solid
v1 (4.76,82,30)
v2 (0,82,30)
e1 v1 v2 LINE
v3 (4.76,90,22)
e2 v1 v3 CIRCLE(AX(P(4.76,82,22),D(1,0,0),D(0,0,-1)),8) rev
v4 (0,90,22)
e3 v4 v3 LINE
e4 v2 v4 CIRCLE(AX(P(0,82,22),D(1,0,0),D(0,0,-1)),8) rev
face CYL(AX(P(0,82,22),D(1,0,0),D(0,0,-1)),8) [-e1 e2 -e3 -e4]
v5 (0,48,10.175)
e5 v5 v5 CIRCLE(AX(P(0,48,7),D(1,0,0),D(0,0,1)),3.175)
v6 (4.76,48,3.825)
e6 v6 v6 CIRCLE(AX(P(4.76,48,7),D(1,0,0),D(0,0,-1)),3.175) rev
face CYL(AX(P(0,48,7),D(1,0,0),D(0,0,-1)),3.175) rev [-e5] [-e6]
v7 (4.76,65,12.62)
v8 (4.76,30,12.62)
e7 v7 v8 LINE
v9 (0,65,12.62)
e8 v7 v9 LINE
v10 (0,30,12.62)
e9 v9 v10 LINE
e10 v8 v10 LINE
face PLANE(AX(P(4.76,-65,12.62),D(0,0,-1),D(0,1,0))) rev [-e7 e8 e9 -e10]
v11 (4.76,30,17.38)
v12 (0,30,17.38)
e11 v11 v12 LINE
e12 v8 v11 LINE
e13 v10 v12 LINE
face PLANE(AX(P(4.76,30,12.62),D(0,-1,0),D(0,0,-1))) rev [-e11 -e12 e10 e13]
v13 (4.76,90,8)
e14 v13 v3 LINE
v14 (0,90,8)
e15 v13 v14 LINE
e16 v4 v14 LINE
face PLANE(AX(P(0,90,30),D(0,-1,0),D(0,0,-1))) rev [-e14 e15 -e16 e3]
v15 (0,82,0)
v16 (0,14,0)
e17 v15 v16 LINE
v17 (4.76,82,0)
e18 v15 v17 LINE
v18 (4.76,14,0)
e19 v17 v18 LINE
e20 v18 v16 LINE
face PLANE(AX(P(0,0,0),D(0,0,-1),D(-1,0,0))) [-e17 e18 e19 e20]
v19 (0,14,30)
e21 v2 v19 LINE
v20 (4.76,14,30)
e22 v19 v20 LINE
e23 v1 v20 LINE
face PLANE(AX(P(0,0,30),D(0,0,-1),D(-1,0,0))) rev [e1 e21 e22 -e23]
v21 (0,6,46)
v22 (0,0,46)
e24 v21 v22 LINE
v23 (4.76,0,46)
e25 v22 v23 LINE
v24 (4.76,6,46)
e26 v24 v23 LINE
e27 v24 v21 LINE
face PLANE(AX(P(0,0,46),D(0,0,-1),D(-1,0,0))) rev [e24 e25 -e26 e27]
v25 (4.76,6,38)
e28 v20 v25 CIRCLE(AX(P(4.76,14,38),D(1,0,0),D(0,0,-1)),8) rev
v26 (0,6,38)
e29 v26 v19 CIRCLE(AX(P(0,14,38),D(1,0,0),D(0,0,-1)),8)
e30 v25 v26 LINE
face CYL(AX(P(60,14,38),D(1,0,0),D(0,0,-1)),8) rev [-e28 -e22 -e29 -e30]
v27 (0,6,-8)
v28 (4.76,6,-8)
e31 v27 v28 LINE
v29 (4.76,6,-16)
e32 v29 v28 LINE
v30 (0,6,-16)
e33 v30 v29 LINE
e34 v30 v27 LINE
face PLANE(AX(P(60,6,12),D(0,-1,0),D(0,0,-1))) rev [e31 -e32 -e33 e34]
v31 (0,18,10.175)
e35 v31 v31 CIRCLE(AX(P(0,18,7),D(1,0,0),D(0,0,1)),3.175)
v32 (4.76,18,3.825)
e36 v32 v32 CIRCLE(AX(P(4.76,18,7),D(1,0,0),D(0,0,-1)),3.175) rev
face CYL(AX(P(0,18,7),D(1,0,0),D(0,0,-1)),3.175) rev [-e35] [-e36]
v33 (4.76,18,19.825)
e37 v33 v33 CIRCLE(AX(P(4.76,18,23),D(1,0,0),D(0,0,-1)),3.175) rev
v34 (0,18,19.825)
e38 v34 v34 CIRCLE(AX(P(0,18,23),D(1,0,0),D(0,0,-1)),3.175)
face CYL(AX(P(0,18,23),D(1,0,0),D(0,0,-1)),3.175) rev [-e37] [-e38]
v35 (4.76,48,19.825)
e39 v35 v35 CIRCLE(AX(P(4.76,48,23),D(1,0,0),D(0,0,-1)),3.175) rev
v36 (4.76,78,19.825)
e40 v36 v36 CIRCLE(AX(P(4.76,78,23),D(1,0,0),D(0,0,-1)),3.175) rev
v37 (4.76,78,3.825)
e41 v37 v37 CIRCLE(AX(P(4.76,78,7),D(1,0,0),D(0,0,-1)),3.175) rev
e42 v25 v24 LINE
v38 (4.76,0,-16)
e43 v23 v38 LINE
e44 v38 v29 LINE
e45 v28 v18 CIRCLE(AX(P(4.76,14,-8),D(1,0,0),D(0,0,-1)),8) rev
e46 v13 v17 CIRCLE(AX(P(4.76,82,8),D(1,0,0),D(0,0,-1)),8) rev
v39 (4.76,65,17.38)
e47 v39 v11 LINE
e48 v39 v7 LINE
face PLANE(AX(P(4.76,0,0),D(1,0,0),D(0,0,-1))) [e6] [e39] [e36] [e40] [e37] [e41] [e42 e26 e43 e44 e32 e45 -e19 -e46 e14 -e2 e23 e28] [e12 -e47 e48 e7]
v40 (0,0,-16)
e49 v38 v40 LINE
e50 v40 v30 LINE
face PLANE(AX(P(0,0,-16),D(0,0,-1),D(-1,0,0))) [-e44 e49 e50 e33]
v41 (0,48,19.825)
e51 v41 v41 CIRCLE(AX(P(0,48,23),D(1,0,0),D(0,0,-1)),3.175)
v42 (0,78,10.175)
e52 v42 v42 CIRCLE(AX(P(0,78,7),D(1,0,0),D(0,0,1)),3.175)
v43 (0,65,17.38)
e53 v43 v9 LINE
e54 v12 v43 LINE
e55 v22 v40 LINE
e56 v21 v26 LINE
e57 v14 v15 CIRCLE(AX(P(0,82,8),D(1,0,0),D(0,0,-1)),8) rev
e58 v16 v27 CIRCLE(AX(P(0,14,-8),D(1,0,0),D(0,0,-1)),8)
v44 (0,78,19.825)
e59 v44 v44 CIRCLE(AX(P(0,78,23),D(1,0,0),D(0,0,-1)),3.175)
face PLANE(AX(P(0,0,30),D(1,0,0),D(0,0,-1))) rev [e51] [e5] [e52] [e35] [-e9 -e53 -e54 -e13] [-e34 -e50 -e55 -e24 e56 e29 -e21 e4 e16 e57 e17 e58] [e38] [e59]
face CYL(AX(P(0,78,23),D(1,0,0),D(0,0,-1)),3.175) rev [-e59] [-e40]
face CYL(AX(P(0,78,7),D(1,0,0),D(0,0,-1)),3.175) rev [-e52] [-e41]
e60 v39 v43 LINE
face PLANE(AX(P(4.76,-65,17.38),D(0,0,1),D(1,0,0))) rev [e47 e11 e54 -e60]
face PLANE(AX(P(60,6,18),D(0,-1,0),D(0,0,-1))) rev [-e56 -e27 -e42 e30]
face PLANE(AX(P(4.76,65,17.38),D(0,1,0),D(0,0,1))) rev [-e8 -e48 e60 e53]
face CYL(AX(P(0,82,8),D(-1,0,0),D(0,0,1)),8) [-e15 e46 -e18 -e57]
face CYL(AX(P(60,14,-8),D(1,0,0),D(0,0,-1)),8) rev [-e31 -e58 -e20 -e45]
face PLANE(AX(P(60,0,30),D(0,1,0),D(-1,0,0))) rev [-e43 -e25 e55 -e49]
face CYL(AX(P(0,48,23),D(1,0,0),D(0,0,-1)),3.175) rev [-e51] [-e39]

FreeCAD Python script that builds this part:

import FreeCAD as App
import Part
import Sketcher
Q = App.Units.Quantity


def edges_at(feature, points):
    """Names of the edges that pass closest to the given points."""
    edges = feature.Shape.Edges
    near = lambda p: min(range(len(edges)), key=lambda i: edges[i].distToShape(Part.Vertex(*p))[0])
    return sorted({f"Edge{near(p) + 1}" for p in points})


def add_polygon(sketch, points):
    """Adds a closed chain of lines whose ends are joined by coincident constraints."""
    first, n = sketch.GeometryCount, len(points)
    for a, b in zip(points, points[1:] + points[:1]):
        sketch.addGeometry(Part.LineSegment(App.Vector(*a, 0), App.Vector(*b, 0)), False)
    for i in range(n):
        sketch.addConstraint(Sketcher.Constraint("Coincident", first + i, 2, first + (i + 1) % n, 1))

doc = App.newDocument("Part")
body = doc.addObject("PartDesign::Body", "Body")

sketch1 = body.newObject("Sketcher::SketchObject", "Sketch")
sketch1.AttachmentSupport = (doc.getObject("XY_Plane"), [""])
sketch1.MapMode = "FlatFace"
add_polygon(sketch1, [(0, 100), (0, 0), (60, 0)])
sketch1.addConstraint([
    Sketcher.Constraint("Vertical", 0),
    Sketcher.Constraint("Horizontal", 1),
    Sketcher.Constraint("Coincident", 0, 2, -1, 1),
    Sketcher.Constraint("DistanceX", 1, 1, 1, 2, Q("60 mm")),
    Sketcher.Constraint("DistanceY", 0, 2, 0, 1, Q("100 mm")),
])
pad1 = body.newObject("PartDesign::Pad", "Pad")
pad1.Profile = sketch1
pad1.Length = 30

sketch2 = body.newObject("Sketcher::SketchObject", "Sketch001")
sketch2.AttachmentSupport = (doc.getObject("YZ_Plane"), [""])
sketch2.MapMode = "FlatFace"
sketch2.AttachmentOffset = App.Placement(App.Vector(0, 0, 6), App.Rotation())
add_polygon(sketch2, [(100, 18), (6, 18), (6, 30), (100, 30)])
add_polygon(sketch2, [(100, 0), (6, 0), (6, 12), (100, 12)])
sketch2.addConstraint([
    Sketcher.Constraint("Horizontal", 0),
    Sketcher.Constraint("Vertical", 1),
    Sketcher.Constraint("Horizontal", 2),
    Sketcher.Constraint("Vertical", 3),
    Sketcher.Constraint("Horizontal", 4),
    Sketcher.Constraint("Vertical", 5),
    Sketcher.Constraint("Horizontal", 6),
    Sketcher.Constraint("Vertical", 7),
    Sketcher.Constraint("PointOnObject", 4, 2, -1),
    Sketcher.Constraint("Vertical", 1, 2, 4, 2),
    Sketcher.Constraint("Vertical", 3, 2, 6, 2),
    Sketcher.Constraint("Equal", 3, 5),
    Sketcher.Constraint("DistanceX", 0, 2, 0, 1, Q("94 mm")),
    Sketcher.Constraint("DistanceY", 1, 1, 1, 2, Q("12 mm")),
    Sketcher.Constraint("DistanceX", -1, 1, 0, 2, Q("6 mm")),
    Sketcher.Constraint("DistanceY", -1, 1, 0, 2, Q("18 mm")),
])
pocket1 = body.newObject("PartDesign::Pocket", "Pocket")
pocket1.Profile = sketch2
pocket1.Type = "ThroughAll"
pocket1.Reversed = True

sketch3 = body.newObject("Sketcher::SketchObject", "Sketch002")
sketch3.AttachmentSupport = (doc.getObject("YZ_Plane"), [""])
sketch3.MapMode = "FlatFace"
sketch3.AttachmentOffset = App.Placement(App.Vector(0, 0, 6), App.Rotation())
add_polygon(sketch3, [(100, 30), (90, 30), (90, 0), (100, 0)])
sketch3.addConstraint([
    Sketcher.Constraint("Horizontal", 0),
    Sketcher.Constraint("Vertical", 1),
    Sketcher.Constraint("Horizontal", 2),
    Sketcher.Constraint("Vertical", 3),
    Sketcher.Constraint("PointOnObject", 1, 2, -1),
    Sketcher.Constraint("DistanceX", 0, 2, 0, 1, Q("10 mm")),
    Sketcher.Constraint("DistanceY", 1, 2, 1, 1, Q("30 mm")),
    Sketcher.Constraint("DistanceX", -1, 1, 0, 2, Q("90 mm")),
])
pocket2 = body.newObject("PartDesign::Pocket", "Pocket001")
pocket2.Profile = sketch3
pocket2.Type = "ThroughAll"

sketch4 = body.newObject("Sketcher::SketchObject", "Sketch003")
sketch4.AttachmentSupport = (doc.getObject("XZ_Plane"), [""])
sketch4.MapMode = "FlatFace"
sketch4.AttachmentOffset = App.Placement(App.Vector(0, 0, -6), App.Rotation())
add_polygon(sketch4, [(56.4, 0), (56.4, 30), (60, 30), (60, 0)])
sketch4.addConstraint([
    Sketcher.Constraint("Vertical", 0),
    Sketcher.Constraint("Horizontal", 1),
    Sketcher.Constraint("Vertical", 2),
    Sketcher.Constraint("Horizontal", 3),
    Sketcher.Constraint("PointOnObject", 2, 2, -1),
    Sketcher.Constraint("DistanceY", 0, 1, 0, 2, Q("30 mm")),
    Sketcher.Constraint("DistanceX", 1, 1, 1, 2, Q("3.6 mm")),
    Sketcher.Constraint("DistanceX", -1, 1, 1, 2, Q("60 mm")),
])
pocket3 = body.newObject("PartDesign::Pocket", "Pocket002")
pocket3.Profile = sketch4
pocket3.Type = "ThroughAll"
pocket3.Reversed = True

sketch5 = body.newObject("Sketcher::SketchObject", "Sketch004")
sketch5.AttachmentSupport = (doc.getObject("XY_Plane"), [""])
sketch5.MapMode = "FlatFace"
sketch5.AttachmentOffset = App.Placement(App.Vector(0, 0, 30), App.Rotation())
add_polygon(sketch5, [(0, 6), (0, 0), (56, 0), (56, 6)])
sketch5.addConstraint([
    Sketcher.Constraint("Vertical", 0),
    Sketcher.Constraint("Horizontal", 1),
    Sketcher.Constraint("Vertical", 2),
    Sketcher.Constraint("Horizontal", 3),
    Sketcher.Constraint("Coincident", 0, 2, -1, 1),
    Sketcher.Constraint("DistanceY", 0, 2, 0, 1, Q("6 mm")),
    Sketcher.Constraint("DistanceX", 1, 1, 1, 2, Q("56.4 mm")),
])
pad2 = body.newObject("PartDesign::Pad", "Pad001")
pad2.Profile = sketch5
pad2.Length = 16

sketch6 = body.newObject("Sketcher::SketchObject", "Sketch005")
sketch6.AttachmentSupport = (doc.getObject("XY_Plane"), [""])
sketch6.MapMode = "FlatFace"
add_polygon(sketch6, [(56, 6), (56, 0), (0, 0), (0, 6)])
sketch6.addConstraint([
    Sketcher.Constraint("Vertical", 0),
    Sketcher.Constraint("Horizontal", 1),
    Sketcher.Constraint("Vertical", 2),
    Sketcher.Constraint("Horizontal", 3),
    Sketcher.Constraint("Coincident", 1, 2, -1, 1),
    Sketcher.Constraint("DistanceY", 0, 2, 0, 1, Q("6 mm")),
    Sketcher.Constraint("DistanceX", 1, 2, 1, 1, Q("56.4 mm")),
])
pad3 = body.newObject("PartDesign::Pad", "Pad002")
pad3.Profile = sketch6
pad3.Length = 16
pad3.Reversed = True
doc.recompute()

fillet = body.newObject("PartDesign::Fillet", "Fillet")
fillet.Base = (pad3, edges_at(pad3, [(3, 6, 0), (3, 6, 30)]))
fillet.Radius = 8
doc.recompute()

fillet2 = body.newObject("PartDesign::Fillet", "Fillet001")
fillet2.Base = (fillet, edges_at(fillet, [(56.4, 3, -16), (56.4, 3, 46)]))
fillet2.Radius = 8
doc.recompute()

fillet3 = body.newObject("PartDesign::Fillet", "Fillet002")
fillet3.Base = (fillet2, edges_at(fillet2, [(3, 90, 30), (3, 90, 0)]))
fillet3.Radius = 8
doc.recompute()

fillet4 = body.newObject("PartDesign::Fillet", "Fillet003")
fillet4.Base = (fillet3, edges_at(fillet3, [(31.2, 6, 18), (31.2, 6, 12)]))
fillet4.Radius = 4

sketch7 = body.newObject("Sketcher::SketchObject", "Sketch006")
sketch7.AttachmentSupport = (doc.getObject("YZ_Plane"), [""])
sketch7.MapMode = "FlatFace"
sketch7.AttachmentOffset = App.Placement(App.Vector(0, 0, 6), App.Rotation())
sketch7.addGeometry([
    Part.Circle(App.Vector(78, 23, 0), App.Vector(0, 0, 1), 3.2),
    Part.Circle(App.Vector(48, 23, 0), App.Vector(0, 0, 1), 3.2),
    Part.Circle(App.Vector(18, 23, 0), App.Vector(0, 0, 1), 3.2),
    Part.Circle(App.Vector(18, 7, 0), App.Vector(0, 0, 1), 3.2),
    Part.Circle(App.Vector(48, 7, 0), App.Vector(0, 0, 1), 3.2),
    Part.Circle(App.Vector(78, 7, 0), App.Vector(0, 0, 1), 3.2),
], False)
sketch7.addConstraint([
    Sketcher.Constraint("Equal", 0, 1),
    Sketcher.Constraint("Equal", 1, 2),
    Sketcher.Constraint("Equal", 2, 3),
    Sketcher.Constraint("Equal", 3, 4),
    Sketcher.Constraint("Equal", 4, 5),
    Sketcher.Constraint("Horizontal", 0, 3, 1, 3),
    Sketcher.Constraint("Horizontal", 1, 3, 2, 3),
    Sketcher.Constraint("Horizontal", 3, 3, 4, 3),
    Sketcher.Constraint("Horizontal", 4, 3, 5, 3),
    Sketcher.Constraint("Vertical", 2, 3, 3, 3),
    Sketcher.Constraint("Vertical", 1, 3, 4, 3),
    Sketcher.Constraint("Vertical", 0, 3, 5, 3),
    Sketcher.Constraint("Diameter", 0, Q("6.35 mm")),
    Sketcher.Constraint("DistanceX", -1, 1, 0, 3, Q("78 mm")),
    Sketcher.Constraint("DistanceY", -1, 1, 0, 3, Q("23 mm")),
    Sketcher.Constraint("DistanceX", -1, 1, 1, 3, Q("48 mm")),
    Sketcher.Constraint("DistanceX", -1, 1, 2, 3, Q("18 mm")),
    Sketcher.Constraint("DistanceY", -1, 1, 3, 3, Q("7 mm")),
])
pocket4 = body.newObject("PartDesign::Pocket", "Pocket003")
pocket4.Profile = sketch7
pocket4.Type = "ThroughAll"

sketch8 = body.newObject("Sketcher::SketchObject", "Sketch007")
sketch8.AttachmentSupport = (doc.getObject("XZ_Plane"), [""])
sketch8.MapMode = "FlatFace"
sketch8.AttachmentOffset = App.Placement(App.Vector(0, 0, -6), App.Rotation())
sketch8.addGeometry([
    Part.Circle(App.Vector(48.4, -8, 0), App.Vector(0, 0, 1), 3.2),
    Part.Circle(App.Vector(48.4, 38, 0), App.Vector(0, 0, 1), 3.2),
    Part.Circle(App.Vector(16.4, 38, 0), App.Vector(0, 0, 1), 3.2),
    Part.Circle(App.Vector(16.4, -8, 0), App.Vector(0, 0, 1), 3.2),
], False)
sketch8.addConstraint([
    Sketcher.Constraint("Equal", 0, 1),
    Sketcher.Constraint("Equal", 1, 2),
    Sketcher.Constraint("Equal", 2, 3),
    Sketcher.Constraint("Horizontal", 1, 3, 2, 3),
    Sketcher.Constraint("Horizontal", 0, 3, 3, 3),
    Sketcher.Constraint("Vertical", 0, 3, 1, 3),
    Sketcher.Constraint("Vertical", 2, 3, 3, 3),
    Sketcher.Constraint("Diameter", 0, Q("6.5 mm")),
    Sketcher.Constraint("DistanceY", 0, 3, -1, 1, Q("8 mm")),
    Sketcher.Constraint("DistanceY", -1, 1, 1, 3, Q("38 mm")),
    Sketcher.Constraint("DistanceX", 2, 3, 1, 3, Q("32 mm")),
    Sketcher.Constraint("DistanceX", -1, 1, 0, 3, Q("48.4 mm")),
])
pocket5 = body.newObject("PartDesign::Pocket", "Pocket004")
pocket5.Profile = sketch8
pocket5.Type = "ThroughAll"
pocket5.Reversed = True

sketch9 = body.newObject("Sketcher::SketchObject", "Sketch008")
sketch9.AttachmentSupport = (doc.getObject("YZ_Plane"), [""])
sketch9.MapMode = "FlatFace"
sketch9.AttachmentOffset = App.Placement(App.Vector(0, 0, 6), App.Rotation())
add_polygon(sketch9, [(90, 46), (0, 46), (0, -16), (90, -16)])
sketch9.addConstraint([
    Sketcher.Constraint("Horizontal", 0),
    Sketcher.Constraint("Vertical", 1),
    Sketcher.Constraint("Horizontal", 2),
    Sketcher.Constraint("Vertical", 3),
    Sketcher.Constraint("PointOnObject", 0, 2, -2),
    Sketcher.Constraint("DistanceX", 0, 2, 0, 1, Q("90 mm")),
    Sketcher.Constraint("DistanceY", 1, 2, 1, 1, Q("62 mm")),
    Sketcher.Constraint("DistanceY", -1, 1, 0, 2, Q("46 mm")),
])
pocket6 = body.newObject("PartDesign::Pocket", "Pocket005")
pocket6.Profile = sketch9
pocket6.Type = "TwoLengths"
pocket6.Length = 113.943172
pocket6.Length2 = 1.24
pocket6.Reversed = True

sketch10 = body.newObject("Sketcher::SketchObject", "Sketch009")
sketch10.AttachmentSupport = (doc.getObject("YZ_Plane"), [""])
sketch10.MapMode = "FlatFace"
add_polygon(sketch10, [(65, 12.6), (-65, 12.6), (-65, 17.4), (65, 17.4)])
sketch10.addConstraint([
    Sketcher.Constraint("Horizontal", 0),
    Sketcher.Constraint("Vertical", 1),
    Sketcher.Constraint("Horizontal", 2),
    Sketcher.Constraint("Vertical", 3),
    Sketcher.Constraint("DistanceX", 0, 2, 0, 1, Q("130 mm")),
    Sketcher.Constraint("DistanceX", 0, 2, -1, 1, Q("65 mm")),
    Sketcher.Constraint("DistanceY", 1, 1, 1, 2, Q("4.76 mm")),
    Sketcher.Constraint("DistanceY", -1, 1, 0, 2, Q("12.62 mm")),
])
pocket7 = body.newObject("PartDesign::Pocket", "Pocket006")
pocket7.Profile = sketch10
pocket7.Type = "ThroughAll"
pocket7.Reversed = True

sketch11 = body.newObject("Sketcher::SketchObject", "Sketch010")
sketch11.AttachmentSupport = (doc.getObject("YZ_Plane"), [""])
sketch11.MapMode = "FlatFace"
add_polygon(sketch11, [(30, 12.6), (0, 12.6), (0, 17.4), (30, 17.4)])
sketch11.addConstraint([
    Sketcher.Constraint("Horizontal", 0),
    Sketcher.Constraint("Vertical", 1),
    Sketcher.Constraint("Horizontal", 2),
    Sketcher.Constraint("Vertical", 3),
    Sketcher.Constraint("PointOnObject", 0, 2, -2),
    Sketcher.Constraint("DistanceX", 0, 2, 0, 1, Q("30 mm")),
    Sketcher.Constraint("DistanceY", 1, 1, 1, 2, Q("4.76 mm")),
    Sketcher.Constraint("DistanceY", -1, 1, 0, 2, Q("12.62 mm")),
])
pad4 = body.newObject("PartDesign::Pad", "Pad003")
pad4.Profile = sketch11
pad4.Length = 4.76

doc.recompute()
